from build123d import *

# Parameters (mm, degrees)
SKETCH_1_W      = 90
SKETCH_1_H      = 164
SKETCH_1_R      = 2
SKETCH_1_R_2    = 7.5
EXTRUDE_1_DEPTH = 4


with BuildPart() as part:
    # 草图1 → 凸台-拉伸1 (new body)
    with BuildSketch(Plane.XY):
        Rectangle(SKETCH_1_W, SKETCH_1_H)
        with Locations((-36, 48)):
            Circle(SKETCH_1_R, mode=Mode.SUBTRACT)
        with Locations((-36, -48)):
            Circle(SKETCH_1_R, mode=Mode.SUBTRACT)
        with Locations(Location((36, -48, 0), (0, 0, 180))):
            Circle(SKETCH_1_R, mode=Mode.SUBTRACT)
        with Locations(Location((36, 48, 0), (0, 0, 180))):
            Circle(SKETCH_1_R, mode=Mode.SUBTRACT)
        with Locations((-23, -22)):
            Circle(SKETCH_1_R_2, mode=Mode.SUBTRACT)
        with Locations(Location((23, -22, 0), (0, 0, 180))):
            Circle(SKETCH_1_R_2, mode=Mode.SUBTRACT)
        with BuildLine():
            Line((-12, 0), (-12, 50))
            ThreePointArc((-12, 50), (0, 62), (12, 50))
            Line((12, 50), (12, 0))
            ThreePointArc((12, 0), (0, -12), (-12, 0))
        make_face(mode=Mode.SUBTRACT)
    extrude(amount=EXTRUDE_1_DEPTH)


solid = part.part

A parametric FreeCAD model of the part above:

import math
import FreeCAD as App
import Part
import Sketcher

V = App.Vector
Q = App.Units.Quantity

doc = App.newDocument("Part")
body = doc.addObject("PartDesign::Body", "Body")

# Sketch on XY plane
sketch1 = body.newObject("Sketcher::SketchObject", "Sketch")
sketch1.AttachmentSupport = (doc.getObject("XY_Plane"), [""])
sketch1.MapMode = "FlatFace"
sketch1.addGeometry(Part.LineSegment(V(-45, 82, 0), V(-45, -82, 0)), False)
sketch1.addGeometry(Part.LineSegment(V(-45, -82, 0), V(45, -82, 0)), False)
sketch1.addGeometry(Part.LineSegment(V(45, -82, 0), V(45, 82, 0)), False)
sketch1.addGeometry(Part.LineSegment(V(45, 82, 0), V(-45, 82, 0)), False)
sketch1.addGeometry(Part.Circle(V(-36, -48, 0), V(0, 0, 1), 2), False)
sketch1.addGeometry(Part.Circle(V(-23, -22, 0), V(0, 0, 1), 7.5), False)
sketch1.addGeometry(Part.Circle(V(36, -48, 0), V(0, 0, 1), 2), False)
sketch1.addGeometry(Part.Circle(V(23, -22, 0), V(0, 0, 1), 7.5), False)
sketch1.addGeometry(Part.Circle(V(-36, 48, 0), V(0, 0, 1), 2), False)
sketch1.addGeometry(Part.ArcOfCircle(Part.Circle(V(0, 0, 0), V(0, 0, 1), 12), math.radians(180), math.radians(360)), False)
sketch1.addGeometry(Part.LineSegment(V(-12, 0, 0), V(-12, 50, 0)), False)
sketch1.addGeometry(Part.ArcOfCircle(Part.Circle(V(0, 50, 0), V(0, 0, 1), 12), math.radians(0), math.radians(180)), False)
sketch1.addGeometry(Part.LineSegment(V(12, 50, 0), V(12, 0, 0)), False)
sketch1.addGeometry(Part.Circle(V(36, 48, 0), V(0, 0, 1), 2), False)
sketch1.addConstraint(Sketcher.Constraint("Coincident", 0, 2, 1, 1))
sketch1.addConstraint(Sketcher.Constraint("Coincident", 1, 2, 2, 1))
sketch1.addConstraint(Sketcher.Constraint("Coincident", 2, 2, 3, 1))
sketch1.addConstraint(Sketcher.Constraint("Coincident", 3, 2, 0, 1))
sketch1.addConstraint(Sketcher.Constraint("Tangent", 9, 1, 10, 1))
sketch1.addConstraint(Sketcher.Constraint("Tangent", 10, 2, 11, 2))
sketch1.addConstraint(Sketcher.Constraint("Tangent", 11, 1, 12, 1))
sketch1.addConstraint(Sketcher.Constraint("Tangent", 12, 2, 9, 2))
sketch1.addConstraint(Sketcher.Constraint("Vertical", 0))
sketch1.addConstraint(Sketcher.Constraint("Horizontal", 1))
sketch1.addConstraint(Sketcher.Constraint("Vertical", 2))
sketch1.addConstraint(Sketcher.Constraint("Horizontal", 3))
sketch1.addConstraint(Sketcher.Constraint("Vertical", 10))
sketch1.addConstraint(Sketcher.Constraint("Vertical", 12))
sketch1.addConstraint(Sketcher.Constraint("Coincident", 9, 3, -1, 1))
sketch1.addConstraint(Sketcher.Constraint("Equal", 4, 6))
sketch1.addConstraint(Sketcher.Constraint("Equal", 5, 7))
sketch1.addConstraint(Sketcher.Constraint("Equal", 6, 8))
sketch1.addConstraint(Sketcher.Constraint("Equal", 8, 13))
sketch1.addConstraint(Sketcher.Constraint("Symmetric", 6, 3, 8, 3, -1, 1))
sketch1.addConstraint(Sketcher.Constraint("Symmetric", 4, 3, 13, 3, -1, 1))
sketch1.addConstraint(Sketcher.Constraint("Symmetric", 0, 2, 2, 2, -1, 1))
sketch1.addConstraint(Sketcher.Constraint("Symmetric", 4, 3, 6, 3, -2))
sketch1.addConstraint(Sketcher.Constraint("Symmetric", 5, 3, 7, 3, -2))
sketch1.addConstraint(Sketcher.Constraint("Diameter", 4, Q("4 mm")))
sketch1.addConstraint(Sketcher.Constraint("Diameter", 5, Q("15 mm")))
sketch1.addConstraint(Sketcher.Constraint("Radius", 9, Q("12 mm")))
sketch1.addConstraint(Sketcher.Constraint("DistanceX", 1, 1, 1, 2, Q("90 mm")))
sketch1.addConstraint(Sketcher.Constraint("DistanceY", 0, 2, 0, 1, Q("164 mm")))
sketch1.addConstraint(Sketcher.Constraint("DistanceY", 10, 1, 10, 2, Q("50 mm")))
sketch1.addConstraint(Sketcher.Constraint("DistanceX", 4, 3, -1, 1, Q("36 mm")))
sketch1.addConstraint(Sketcher.Constraint("DistanceY", 4, 3, -1, 1, Q("48 mm")))
sketch1.addConstraint(Sketcher.Constraint("DistanceX", 5, 3, -1, 1, Q("23 mm")))
sketch1.addConstraint(Sketcher.Constraint("DistanceY", 5, 3, -1, 1, Q("22 mm")))
pad1 = body.newObject("PartDesign::Pad", "Pad")
pad1.Profile = sketch1
pad1.Length = 4

doc.recompute()
